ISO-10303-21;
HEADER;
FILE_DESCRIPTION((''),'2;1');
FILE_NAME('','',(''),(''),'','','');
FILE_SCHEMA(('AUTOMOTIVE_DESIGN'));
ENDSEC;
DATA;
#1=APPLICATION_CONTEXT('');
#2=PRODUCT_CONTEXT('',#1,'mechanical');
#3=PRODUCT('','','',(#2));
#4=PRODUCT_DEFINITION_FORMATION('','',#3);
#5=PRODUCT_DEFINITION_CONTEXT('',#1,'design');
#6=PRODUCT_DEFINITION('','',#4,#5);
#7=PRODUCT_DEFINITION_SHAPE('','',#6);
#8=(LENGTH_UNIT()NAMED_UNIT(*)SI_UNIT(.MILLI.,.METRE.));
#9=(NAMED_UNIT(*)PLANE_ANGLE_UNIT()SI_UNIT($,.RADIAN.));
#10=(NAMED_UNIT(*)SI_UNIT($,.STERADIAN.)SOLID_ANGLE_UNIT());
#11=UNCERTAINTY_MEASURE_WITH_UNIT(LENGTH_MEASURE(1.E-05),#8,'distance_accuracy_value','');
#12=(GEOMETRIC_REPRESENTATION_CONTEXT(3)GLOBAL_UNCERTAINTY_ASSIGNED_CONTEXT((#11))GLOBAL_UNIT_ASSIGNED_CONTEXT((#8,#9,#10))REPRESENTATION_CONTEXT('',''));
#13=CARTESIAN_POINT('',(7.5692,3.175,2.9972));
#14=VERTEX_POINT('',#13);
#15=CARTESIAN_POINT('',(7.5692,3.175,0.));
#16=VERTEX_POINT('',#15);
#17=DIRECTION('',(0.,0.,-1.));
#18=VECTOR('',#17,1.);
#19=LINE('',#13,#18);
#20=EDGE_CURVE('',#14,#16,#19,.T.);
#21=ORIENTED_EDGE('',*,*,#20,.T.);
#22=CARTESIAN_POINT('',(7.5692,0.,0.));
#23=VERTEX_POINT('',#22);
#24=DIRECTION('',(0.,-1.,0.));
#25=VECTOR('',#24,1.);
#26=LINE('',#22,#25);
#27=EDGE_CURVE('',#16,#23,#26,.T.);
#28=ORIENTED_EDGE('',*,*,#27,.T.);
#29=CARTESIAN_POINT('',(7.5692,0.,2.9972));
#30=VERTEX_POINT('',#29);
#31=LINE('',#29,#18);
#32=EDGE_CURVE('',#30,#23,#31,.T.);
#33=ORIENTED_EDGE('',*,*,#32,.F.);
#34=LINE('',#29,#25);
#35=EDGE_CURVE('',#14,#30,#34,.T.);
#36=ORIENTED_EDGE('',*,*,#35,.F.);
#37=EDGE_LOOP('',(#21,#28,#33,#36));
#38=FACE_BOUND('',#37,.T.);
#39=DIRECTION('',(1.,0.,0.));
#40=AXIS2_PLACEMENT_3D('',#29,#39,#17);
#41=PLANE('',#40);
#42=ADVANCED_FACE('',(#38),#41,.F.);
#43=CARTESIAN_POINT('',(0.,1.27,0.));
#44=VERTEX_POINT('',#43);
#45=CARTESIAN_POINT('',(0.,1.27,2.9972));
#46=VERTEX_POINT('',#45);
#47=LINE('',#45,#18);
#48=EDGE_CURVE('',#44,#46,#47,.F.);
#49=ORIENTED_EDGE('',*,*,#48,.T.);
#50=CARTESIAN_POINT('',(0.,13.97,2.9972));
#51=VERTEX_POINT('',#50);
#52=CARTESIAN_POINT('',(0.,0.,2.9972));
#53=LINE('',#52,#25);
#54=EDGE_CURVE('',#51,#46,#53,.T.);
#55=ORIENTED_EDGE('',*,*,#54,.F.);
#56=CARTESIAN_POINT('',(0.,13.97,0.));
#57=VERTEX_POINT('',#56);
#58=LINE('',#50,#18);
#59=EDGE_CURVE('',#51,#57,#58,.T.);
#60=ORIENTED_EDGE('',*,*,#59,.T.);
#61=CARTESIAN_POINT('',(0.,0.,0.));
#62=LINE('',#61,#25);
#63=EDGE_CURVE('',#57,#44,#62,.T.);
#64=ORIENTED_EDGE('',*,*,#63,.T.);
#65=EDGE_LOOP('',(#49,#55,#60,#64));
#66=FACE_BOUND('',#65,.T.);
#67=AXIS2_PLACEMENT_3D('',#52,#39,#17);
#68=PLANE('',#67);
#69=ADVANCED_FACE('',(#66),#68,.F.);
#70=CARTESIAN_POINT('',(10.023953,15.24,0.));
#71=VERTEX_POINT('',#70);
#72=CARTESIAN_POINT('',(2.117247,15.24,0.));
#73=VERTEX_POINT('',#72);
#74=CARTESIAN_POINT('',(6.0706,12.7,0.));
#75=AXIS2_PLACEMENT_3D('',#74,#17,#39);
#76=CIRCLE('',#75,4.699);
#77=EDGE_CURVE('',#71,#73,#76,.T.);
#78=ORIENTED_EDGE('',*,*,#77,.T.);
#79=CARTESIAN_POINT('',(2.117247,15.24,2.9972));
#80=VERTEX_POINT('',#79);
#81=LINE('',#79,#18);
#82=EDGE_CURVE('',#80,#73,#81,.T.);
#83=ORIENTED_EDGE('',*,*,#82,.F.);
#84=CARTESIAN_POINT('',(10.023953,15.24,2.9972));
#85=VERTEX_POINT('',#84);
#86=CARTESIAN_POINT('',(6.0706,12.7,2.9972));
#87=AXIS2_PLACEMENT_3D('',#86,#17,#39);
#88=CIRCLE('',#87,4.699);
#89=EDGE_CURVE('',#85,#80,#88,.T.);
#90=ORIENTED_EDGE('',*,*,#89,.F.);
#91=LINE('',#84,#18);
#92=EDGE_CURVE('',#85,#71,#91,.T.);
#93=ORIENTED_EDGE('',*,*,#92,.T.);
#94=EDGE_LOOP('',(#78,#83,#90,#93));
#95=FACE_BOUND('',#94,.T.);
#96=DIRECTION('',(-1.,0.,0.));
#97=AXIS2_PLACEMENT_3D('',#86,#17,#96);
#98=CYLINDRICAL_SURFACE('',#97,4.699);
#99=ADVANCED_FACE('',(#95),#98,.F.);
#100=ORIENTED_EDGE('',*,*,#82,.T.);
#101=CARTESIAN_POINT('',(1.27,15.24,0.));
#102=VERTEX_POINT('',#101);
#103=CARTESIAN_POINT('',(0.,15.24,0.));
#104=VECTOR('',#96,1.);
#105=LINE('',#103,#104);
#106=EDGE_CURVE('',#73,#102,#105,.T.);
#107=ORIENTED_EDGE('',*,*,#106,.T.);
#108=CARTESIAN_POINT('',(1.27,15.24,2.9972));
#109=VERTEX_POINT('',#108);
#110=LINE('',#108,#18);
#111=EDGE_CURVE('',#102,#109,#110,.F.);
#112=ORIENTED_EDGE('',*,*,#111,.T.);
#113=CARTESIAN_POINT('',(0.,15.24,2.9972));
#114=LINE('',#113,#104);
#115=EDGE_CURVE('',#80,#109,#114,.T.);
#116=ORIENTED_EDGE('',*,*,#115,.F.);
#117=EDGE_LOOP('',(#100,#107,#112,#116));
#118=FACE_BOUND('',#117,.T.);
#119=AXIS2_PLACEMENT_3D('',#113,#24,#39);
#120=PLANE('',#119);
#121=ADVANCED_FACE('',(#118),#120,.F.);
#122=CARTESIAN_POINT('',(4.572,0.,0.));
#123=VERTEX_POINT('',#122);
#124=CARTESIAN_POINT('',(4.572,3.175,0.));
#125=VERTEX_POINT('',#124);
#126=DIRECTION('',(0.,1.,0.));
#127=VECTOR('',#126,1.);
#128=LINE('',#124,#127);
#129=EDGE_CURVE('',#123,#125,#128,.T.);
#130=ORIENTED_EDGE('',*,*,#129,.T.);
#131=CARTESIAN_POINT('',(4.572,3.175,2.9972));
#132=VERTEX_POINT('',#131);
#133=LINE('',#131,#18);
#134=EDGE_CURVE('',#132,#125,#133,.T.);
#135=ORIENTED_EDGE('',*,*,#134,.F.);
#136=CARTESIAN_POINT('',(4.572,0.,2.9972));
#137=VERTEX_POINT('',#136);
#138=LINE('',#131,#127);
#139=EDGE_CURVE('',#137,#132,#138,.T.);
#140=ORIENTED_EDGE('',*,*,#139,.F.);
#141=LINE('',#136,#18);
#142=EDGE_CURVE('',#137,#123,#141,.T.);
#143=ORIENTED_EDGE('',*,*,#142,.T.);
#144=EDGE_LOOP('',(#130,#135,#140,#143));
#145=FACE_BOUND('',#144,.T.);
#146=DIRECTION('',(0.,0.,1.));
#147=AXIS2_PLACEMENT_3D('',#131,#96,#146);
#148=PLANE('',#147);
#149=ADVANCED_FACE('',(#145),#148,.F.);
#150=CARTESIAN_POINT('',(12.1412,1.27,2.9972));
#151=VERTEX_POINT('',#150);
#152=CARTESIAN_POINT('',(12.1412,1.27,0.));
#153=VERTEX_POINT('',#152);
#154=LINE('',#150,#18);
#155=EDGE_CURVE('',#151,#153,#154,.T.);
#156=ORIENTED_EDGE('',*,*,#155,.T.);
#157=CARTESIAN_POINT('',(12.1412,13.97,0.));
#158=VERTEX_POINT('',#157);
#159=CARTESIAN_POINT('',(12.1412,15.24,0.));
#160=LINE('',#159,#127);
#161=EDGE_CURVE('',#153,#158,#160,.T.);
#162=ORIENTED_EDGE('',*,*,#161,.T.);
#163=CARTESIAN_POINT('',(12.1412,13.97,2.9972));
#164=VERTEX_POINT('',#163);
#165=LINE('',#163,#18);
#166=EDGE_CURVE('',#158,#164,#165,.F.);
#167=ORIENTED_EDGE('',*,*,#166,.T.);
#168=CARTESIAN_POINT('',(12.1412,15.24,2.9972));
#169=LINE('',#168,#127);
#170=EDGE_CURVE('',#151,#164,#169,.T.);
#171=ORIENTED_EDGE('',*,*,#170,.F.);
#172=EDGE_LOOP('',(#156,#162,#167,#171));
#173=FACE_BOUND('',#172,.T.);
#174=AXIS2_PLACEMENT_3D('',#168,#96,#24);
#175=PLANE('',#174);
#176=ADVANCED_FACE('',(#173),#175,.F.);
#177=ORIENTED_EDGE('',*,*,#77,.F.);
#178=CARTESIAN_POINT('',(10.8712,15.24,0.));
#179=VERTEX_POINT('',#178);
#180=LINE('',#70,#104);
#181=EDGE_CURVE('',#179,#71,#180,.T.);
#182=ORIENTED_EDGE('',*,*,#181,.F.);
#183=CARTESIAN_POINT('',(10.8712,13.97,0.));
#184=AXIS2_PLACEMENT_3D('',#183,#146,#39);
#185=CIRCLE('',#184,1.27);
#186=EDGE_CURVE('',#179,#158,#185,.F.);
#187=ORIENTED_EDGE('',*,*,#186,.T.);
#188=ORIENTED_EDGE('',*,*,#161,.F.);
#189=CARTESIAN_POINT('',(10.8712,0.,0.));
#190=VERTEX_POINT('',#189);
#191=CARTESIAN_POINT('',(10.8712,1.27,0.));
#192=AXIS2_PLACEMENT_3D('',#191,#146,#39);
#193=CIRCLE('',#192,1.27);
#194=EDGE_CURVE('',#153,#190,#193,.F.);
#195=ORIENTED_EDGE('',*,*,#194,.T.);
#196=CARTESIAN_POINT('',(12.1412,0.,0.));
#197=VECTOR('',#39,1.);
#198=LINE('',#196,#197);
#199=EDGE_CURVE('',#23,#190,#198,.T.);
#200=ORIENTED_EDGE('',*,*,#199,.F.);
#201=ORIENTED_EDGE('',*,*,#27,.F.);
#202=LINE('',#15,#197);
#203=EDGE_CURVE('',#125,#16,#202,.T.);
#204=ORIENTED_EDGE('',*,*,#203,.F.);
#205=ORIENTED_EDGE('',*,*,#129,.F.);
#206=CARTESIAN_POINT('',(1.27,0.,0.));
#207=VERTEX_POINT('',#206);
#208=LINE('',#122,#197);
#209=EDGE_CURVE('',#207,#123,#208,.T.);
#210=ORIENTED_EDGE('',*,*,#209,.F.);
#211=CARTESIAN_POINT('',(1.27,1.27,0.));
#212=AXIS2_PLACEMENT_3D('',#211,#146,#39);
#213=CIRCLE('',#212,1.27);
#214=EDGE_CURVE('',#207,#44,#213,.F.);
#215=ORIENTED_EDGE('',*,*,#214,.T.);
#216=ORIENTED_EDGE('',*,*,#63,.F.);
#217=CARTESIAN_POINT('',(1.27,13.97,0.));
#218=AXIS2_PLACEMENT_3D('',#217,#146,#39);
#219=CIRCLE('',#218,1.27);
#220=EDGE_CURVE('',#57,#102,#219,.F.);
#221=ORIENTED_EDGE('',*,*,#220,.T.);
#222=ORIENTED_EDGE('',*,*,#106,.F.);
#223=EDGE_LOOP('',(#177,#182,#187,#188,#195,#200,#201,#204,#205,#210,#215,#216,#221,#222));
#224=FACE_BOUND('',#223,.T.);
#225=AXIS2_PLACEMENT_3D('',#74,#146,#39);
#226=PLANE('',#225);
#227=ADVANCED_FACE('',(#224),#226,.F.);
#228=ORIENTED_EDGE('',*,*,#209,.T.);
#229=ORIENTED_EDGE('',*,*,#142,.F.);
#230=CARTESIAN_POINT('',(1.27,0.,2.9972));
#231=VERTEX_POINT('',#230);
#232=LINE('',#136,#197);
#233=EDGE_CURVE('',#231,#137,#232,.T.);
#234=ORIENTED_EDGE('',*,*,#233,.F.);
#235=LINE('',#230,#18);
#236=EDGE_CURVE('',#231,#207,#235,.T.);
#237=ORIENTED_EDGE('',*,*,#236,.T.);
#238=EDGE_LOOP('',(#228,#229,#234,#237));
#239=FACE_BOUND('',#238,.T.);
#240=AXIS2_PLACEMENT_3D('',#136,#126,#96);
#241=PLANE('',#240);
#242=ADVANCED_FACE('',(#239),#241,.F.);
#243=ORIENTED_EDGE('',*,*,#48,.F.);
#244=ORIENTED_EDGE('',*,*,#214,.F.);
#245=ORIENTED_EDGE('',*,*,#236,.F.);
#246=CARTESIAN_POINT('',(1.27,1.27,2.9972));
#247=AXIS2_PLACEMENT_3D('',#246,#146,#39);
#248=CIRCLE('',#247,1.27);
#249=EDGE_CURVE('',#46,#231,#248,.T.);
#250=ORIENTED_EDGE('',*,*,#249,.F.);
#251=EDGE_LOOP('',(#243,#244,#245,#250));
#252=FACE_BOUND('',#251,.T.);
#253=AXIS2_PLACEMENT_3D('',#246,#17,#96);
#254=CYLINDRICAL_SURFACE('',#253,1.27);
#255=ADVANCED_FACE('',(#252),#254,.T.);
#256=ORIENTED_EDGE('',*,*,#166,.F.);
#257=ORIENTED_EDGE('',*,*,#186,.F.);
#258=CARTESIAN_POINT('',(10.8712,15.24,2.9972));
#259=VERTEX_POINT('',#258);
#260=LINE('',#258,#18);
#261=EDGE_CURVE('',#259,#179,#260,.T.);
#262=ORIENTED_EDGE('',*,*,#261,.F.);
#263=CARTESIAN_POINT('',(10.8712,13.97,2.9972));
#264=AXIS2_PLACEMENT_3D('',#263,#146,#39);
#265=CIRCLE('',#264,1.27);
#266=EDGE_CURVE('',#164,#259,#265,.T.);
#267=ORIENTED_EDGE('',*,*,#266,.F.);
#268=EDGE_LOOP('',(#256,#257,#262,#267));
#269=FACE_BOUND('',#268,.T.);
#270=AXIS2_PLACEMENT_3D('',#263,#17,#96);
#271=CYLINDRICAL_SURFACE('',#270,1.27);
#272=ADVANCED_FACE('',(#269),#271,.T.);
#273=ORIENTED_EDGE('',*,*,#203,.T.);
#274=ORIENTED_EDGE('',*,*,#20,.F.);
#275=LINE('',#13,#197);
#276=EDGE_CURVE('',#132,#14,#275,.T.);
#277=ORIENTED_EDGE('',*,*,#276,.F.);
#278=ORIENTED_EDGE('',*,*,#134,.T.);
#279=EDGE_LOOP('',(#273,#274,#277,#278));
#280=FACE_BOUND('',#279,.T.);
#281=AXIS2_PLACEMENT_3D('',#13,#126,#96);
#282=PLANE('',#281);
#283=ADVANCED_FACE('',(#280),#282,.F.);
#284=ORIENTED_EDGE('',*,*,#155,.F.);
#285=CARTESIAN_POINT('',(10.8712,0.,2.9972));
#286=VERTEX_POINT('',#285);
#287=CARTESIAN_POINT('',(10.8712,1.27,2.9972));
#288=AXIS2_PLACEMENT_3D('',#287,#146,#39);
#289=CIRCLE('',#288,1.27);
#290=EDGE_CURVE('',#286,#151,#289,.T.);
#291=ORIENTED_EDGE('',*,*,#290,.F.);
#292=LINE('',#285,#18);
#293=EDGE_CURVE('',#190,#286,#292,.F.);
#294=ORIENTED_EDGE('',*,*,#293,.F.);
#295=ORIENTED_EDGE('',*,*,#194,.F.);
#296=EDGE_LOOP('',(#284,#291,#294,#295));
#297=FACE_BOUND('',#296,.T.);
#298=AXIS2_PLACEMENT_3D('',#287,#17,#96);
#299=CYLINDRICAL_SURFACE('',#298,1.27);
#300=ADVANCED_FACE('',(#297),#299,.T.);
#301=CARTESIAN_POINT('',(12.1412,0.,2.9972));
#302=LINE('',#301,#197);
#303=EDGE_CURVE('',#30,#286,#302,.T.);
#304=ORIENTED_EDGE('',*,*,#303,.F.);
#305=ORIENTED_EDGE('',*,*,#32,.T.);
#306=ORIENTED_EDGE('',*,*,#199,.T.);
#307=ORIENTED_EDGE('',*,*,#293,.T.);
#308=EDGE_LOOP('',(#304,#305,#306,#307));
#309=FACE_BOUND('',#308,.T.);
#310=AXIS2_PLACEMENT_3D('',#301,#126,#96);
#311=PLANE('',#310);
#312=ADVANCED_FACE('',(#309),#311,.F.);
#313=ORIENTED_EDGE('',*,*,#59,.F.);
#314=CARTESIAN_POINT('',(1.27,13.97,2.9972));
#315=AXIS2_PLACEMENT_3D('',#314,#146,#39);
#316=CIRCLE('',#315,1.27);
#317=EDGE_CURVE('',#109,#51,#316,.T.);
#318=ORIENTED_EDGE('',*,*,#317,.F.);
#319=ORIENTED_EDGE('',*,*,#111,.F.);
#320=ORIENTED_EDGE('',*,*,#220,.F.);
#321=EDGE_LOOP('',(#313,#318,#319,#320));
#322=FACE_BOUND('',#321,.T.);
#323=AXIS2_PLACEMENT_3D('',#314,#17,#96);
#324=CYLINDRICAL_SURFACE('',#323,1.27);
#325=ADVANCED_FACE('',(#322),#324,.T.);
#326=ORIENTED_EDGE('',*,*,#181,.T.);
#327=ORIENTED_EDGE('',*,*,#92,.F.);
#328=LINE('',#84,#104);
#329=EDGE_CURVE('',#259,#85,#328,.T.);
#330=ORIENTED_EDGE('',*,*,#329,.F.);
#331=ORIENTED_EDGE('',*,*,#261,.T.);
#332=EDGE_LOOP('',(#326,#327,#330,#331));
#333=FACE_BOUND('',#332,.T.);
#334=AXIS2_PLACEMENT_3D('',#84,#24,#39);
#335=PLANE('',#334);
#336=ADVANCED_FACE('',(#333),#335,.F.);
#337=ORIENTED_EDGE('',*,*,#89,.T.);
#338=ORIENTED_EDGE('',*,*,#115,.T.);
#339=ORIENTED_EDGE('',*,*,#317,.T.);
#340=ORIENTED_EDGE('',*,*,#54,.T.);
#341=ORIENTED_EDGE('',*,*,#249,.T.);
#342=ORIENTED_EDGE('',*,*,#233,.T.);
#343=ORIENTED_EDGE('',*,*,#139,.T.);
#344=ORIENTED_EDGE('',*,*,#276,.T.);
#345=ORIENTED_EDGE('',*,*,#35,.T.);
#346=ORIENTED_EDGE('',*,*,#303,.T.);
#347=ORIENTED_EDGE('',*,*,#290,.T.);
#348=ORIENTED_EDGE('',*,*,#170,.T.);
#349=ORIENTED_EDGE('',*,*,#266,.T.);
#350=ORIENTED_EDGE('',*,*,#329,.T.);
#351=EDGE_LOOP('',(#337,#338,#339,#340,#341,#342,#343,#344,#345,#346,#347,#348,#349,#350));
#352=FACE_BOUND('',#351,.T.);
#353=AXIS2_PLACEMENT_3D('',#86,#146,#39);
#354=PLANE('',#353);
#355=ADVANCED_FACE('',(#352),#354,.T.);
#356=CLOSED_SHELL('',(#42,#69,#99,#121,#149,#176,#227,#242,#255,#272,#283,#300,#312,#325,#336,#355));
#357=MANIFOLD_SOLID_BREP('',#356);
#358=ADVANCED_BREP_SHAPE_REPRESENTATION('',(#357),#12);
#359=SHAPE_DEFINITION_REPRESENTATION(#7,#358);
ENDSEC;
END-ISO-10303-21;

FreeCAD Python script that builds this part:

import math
import FreeCAD as App
import Part
import Sketcher

V = App.Vector
Q = App.Units.Quantity


def edges_at(feature, points):
    """Names of the edges that pass closest to the given points."""
    edges = feature.Shape.Edges
    near = lambda p: min(range(len(edges)), key=lambda i: edges[i].distToShape(Part.Vertex(*p))[0])
    return sorted({f"Edge{near(p) + 1}" for p in points})

doc = App.newDocument("Part")
body = doc.addObject("PartDesign::Body", "Body")

# Sketch on XY plane
sketch1 = body.newObject("Sketcher::SketchObject", "Sketch")
sketch1.AttachmentSupport = (doc.getObject("XY_Plane"), [""])
sketch1.MapMode = "FlatFace"
sketch1.addGeometry([
    Part.LineSegment(V(0, 15.2, 0), V(0, 0, 0)),  # 0
    Part.LineSegment(V(0, 0, 0), V(4.6, 0, 0)),  # 1
    Part.LineSegment(V(4.6, 0, 0), V(4.6, 3.2, 0)),  # 2
    Part.LineSegment(V(4.6, 3.2, 0), V(7.6, 3.2, 0)),  # 3
    Part.LineSegment(V(7.6, 3.2, 0), V(7.6, 0, 0)),  # 4
    Part.LineSegment(V(7.6, 0, 0), V(12.1, 0, 0)),  # 5
    Part.LineSegment(V(12.1, 0, 0), V(12.1, 15.2, 0)),  # 6
    Part.LineSegment(V(12.1, 15.2, 0), V(10, 15.2, 0)),  # 7
    Part.ArcOfCircle(Part.Circle(V(6.1, 12.7, 0), V(0, 0, 1), 4.7), math.radians(147), math.radians(393)),  # 8
    Part.LineSegment(V(2.1, 15.2, 0), V(0, 15.2, 0)),  # 9
], False)
sketch1.addConstraint([
    Sketcher.Constraint("Coincident", 0, 2, 1, 1),
    Sketcher.Constraint("Coincident", 1, 2, 2, 1),
    Sketcher.Constraint("Coincident", 2, 2, 3, 1),
    Sketcher.Constraint("Coincident", 3, 2, 4, 1),
    Sketcher.Constraint("Coincident", 4, 2, 5, 1),
    Sketcher.Constraint("Coincident", 5, 2, 6, 1),
    Sketcher.Constraint("Coincident", 6, 2, 7, 1),
    Sketcher.Constraint("Coincident", 7, 2, 8, 2),
    Sketcher.Constraint("Coincident", 8, 1, 9, 1),
    Sketcher.Constraint("Coincident", 9, 2, 0, 1),
    Sketcher.Constraint("Vertical", 0),
    Sketcher.Constraint("Horizontal", 1),
    Sketcher.Constraint("Vertical", 2),
    Sketcher.Constraint("Horizontal", 3),
    Sketcher.Constraint("Vertical", 4),
    Sketcher.Constraint("Horizontal", 5),
    Sketcher.Constraint("Vertical", 6),
    Sketcher.Constraint("Horizontal", 7),
    Sketcher.Constraint("Horizontal", 9),
    Sketcher.Constraint("Coincident", 0, 2, -1, 1),
    Sketcher.Constraint("PointOnObject", 4, 2, -1),
    Sketcher.Constraint("Horizontal", 7, 2, 8, 1),
    Sketcher.Constraint("Equal", 1, 5),
    Sketcher.Constraint("Equal", 7, 9),
    Sketcher.Constraint("DistanceY", 0, 2, 0, 1, Q("0.6 in")),
    Sketcher.Constraint("Radius", 8, Q("0.185 in")),
    Sketcher.Constraint("DistanceX", 1, 1, 1, 2, Q("0.18 in")),
    Sketcher.Constraint("DistanceY", -1, 1, 8, 3, Q("0.5 in")),
    Sketcher.Constraint("DistanceX", 3, 1, 3, 2, Q("0.118 in")),
    Sketcher.Constraint("DistanceY", 2, 1, 2, 2, Q("0.125 in")),
])
pad1 = body.newObject("PartDesign::Pad", "Pad")
pad1.Profile = sketch1
pad1.Length = Q("0.118 in")
doc.recompute()

fillet = body.newObject("PartDesign::Fillet", "Fillet")
fillet.Base = (pad1, edges_at(pad1, [
    (0, 0, 1.499),
    (0, 15.24, 1.499),
    (12.141, 15.24, 1.499),
    (12.141, 0, 1.499),
]))
fillet.Radius = Q("0.05 in")

doc.recompute()
